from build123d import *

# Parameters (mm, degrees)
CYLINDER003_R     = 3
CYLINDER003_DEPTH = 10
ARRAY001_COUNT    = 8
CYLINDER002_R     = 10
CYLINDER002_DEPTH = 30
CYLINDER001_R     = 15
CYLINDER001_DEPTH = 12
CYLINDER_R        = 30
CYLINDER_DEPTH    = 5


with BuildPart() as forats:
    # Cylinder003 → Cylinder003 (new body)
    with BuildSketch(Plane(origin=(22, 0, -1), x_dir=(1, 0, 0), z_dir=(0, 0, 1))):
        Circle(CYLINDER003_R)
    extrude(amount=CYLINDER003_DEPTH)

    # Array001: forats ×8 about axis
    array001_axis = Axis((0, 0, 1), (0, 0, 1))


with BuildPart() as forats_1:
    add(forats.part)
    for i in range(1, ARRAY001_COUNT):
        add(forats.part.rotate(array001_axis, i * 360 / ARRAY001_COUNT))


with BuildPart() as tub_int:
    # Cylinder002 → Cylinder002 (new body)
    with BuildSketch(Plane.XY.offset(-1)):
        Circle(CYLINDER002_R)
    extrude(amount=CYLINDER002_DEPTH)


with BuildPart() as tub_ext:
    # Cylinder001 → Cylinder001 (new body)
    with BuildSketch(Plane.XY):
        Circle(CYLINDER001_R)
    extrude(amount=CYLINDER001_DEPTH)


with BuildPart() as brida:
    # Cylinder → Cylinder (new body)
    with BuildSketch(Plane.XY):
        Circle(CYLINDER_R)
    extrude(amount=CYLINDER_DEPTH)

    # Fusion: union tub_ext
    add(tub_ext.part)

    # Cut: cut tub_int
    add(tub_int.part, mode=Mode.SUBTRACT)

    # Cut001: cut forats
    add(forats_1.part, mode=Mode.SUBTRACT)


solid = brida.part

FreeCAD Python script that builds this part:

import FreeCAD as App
import Part
import Sketcher

doc = App.newDocument("Part")
body = doc.addObject("PartDesign::Body", "Body")

# Sketch on XY plane
sketch1 = doc.addObject("Sketcher::SketchObject", "Sketch")
body.addObject(sketch1)
sketch1.AttachmentSupport = (doc.XY_Plane, [""])
sketch1.MapMode = "FlatFace"
sketch1.AttachmentOffset = App.Placement(App.Vector(0, 0, -1), App.Rotation())
sketch1.addGeometry(Part.Circle(App.Vector(22, 0, 0), App.Vector(0, 0, 1), 3), False)
sketch1.addConstraint(Sketcher.Constraint("PointOnObject", 0, 3, -1))
sketch1.addConstraint(Sketcher.Constraint("Diameter", 0, 6.0))
sketch1.addConstraint(Sketcher.Constraint("DistanceX", -1, 1, 0, 3, 22.0))
pad1 = doc.addObject("PartDesign::Pad", "Pad")
body.addObject(pad1)
pad1.Profile = sketch1
pad1.Length = 10
body2 = doc.addObject("PartDesign::Body", "Body001")
body2.AllowCompound = True
doc.recompute()

body2.BaseFeature = body
doc.recompute()

body3 = doc.addObject("PartDesign::Body", "Body002")
body3.BaseFeature = body
body3.Placement = App.Placement(App.Vector(0, 0, 0), App.Rotation(App.Vector(0, 0, 1), 45))
boolean = doc.addObject("PartDesign::Boolean", "Boolean")
body2.addObject(boolean)
boolean.Type = "Fuse"
boolean.addObjects([body3])
doc.recompute()

body4 = doc.addObject("PartDesign::Body", "Body003")
body4.BaseFeature = body
body4.Placement = App.Placement(App.Vector(0, 0, 0), App.Rotation(App.Vector(0, 0, 1), 90))
boolean2 = doc.addObject("PartDesign::Boolean", "Boolean001")
body2.addObject(boolean2)
boolean2.Type = "Fuse"
boolean2.addObjects([body4])
doc.recompute()

body5 = doc.addObject("PartDesign::Body", "Body004")
body5.BaseFeature = body
body5.Placement = App.Placement(App.Vector(0, 0, 0), App.Rotation(App.Vector(0, 0, 1), 135))
boolean3 = doc.addObject("PartDesign::Boolean", "Boolean002")
body2.addObject(boolean3)
boolean3.Type = "Fuse"
boolean3.addObjects([body5])
doc.recompute()

body6 = doc.addObject("PartDesign::Body", "Body005")
body6.BaseFeature = body
body6.Placement = App.Placement(App.Vector(0, 0, 0), App.Rotation(App.Vector(0, 0, 1), 180))
boolean4 = doc.addObject("PartDesign::Boolean", "Boolean003")
body2.addObject(boolean4)
boolean4.Type = "Fuse"
boolean4.addObjects([body6])
doc.recompute()

body7 = doc.addObject("PartDesign::Body", "Body006")
body7.BaseFeature = body
body7.Placement = App.Placement(App.Vector(0, 0, 0), App.Rotation(App.Vector(0, 0, 1), 225))
boolean5 = doc.addObject("PartDesign::Boolean", "Boolean004")
body2.addObject(boolean5)
boolean5.Type = "Fuse"
boolean5.addObjects([body7])
doc.recompute()

body8 = doc.addObject("PartDesign::Body", "Body007")
body8.BaseFeature = body
body8.Placement = App.Placement(App.Vector(0, 0, 0), App.Rotation(App.Vector(0, 0, 1), 270))
boolean6 = doc.addObject("PartDesign::Boolean", "Boolean005")
body2.addObject(boolean6)
boolean6.Type = "Fuse"
boolean6.addObjects([body8])
doc.recompute()

body.Placement = App.Placement(App.Vector(0, 0, 0), App.Rotation(App.Vector(0, 0, 1), 315))
boolean7 = doc.addObject("PartDesign::Boolean", "Boolean006")
body2.addObject(boolean7)
boolean7.Type = "Fuse"
boolean7.addObjects([body])
body9 = doc.addObject("PartDesign::Body", "Body008")

# Sketch on XY plane
sketch2 = doc.addObject("Sketcher::SketchObject", "Sketch001")
body9.addObject(sketch2)
sketch2.AttachmentSupport = (doc.getObject("XY_Plane008"), [""])
sketch2.MapMode = "FlatFace"
sketch2.AttachmentOffset = App.Placement(App.Vector(0, 0, -1), App.Rotation())
sketch2.addGeometry(Part.Circle(App.Vector(0, 0, 0), App.Vector(0, 0, 1), 10), False)
sketch2.addConstraint(Sketcher.Constraint("Coincident", 0, 3, -1, 1))
sketch2.addConstraint(Sketcher.Constraint("Diameter", 0, 20.0))
pad2 = doc.addObject("PartDesign::Pad", "Pad001")
body9.addObject(pad2)
pad2.Profile = sketch2
pad2.Length = 30
body10 = doc.addObject("PartDesign::Body", "Body009")

# Sketch on XY plane
sketch3 = doc.addObject("Sketcher::SketchObject", "Sketch002")
body10.addObject(sketch3)
sketch3.AttachmentSupport = (doc.getObject("XY_Plane009"), [""])
sketch3.MapMode = "FlatFace"
sketch3.addGeometry(Part.Circle(App.Vector(0, 0, 0), App.Vector(0, 0, 1), 15), False)
sketch3.addConstraint(Sketcher.Constraint("Coincident", 0, 3, -1, 1))
sketch3.addConstraint(Sketcher.Constraint("Diameter", 0, 30.0))
pad3 = doc.addObject("PartDesign::Pad", "Pad002")
body10.addObject(pad3)
pad3.Profile = sketch3
pad3.Length = 12
body11 = doc.addObject("PartDesign::Body", "Body010")

# Sketch on XY plane
sketch4 = doc.addObject("Sketcher::SketchObject", "Sketch003")
body11.addObject(sketch4)
sketch4.AttachmentSupport = (doc.getObject("XY_Plane010"), [""])
sketch4.MapMode = "FlatFace"
sketch4.addGeometry(Part.Circle(App.Vector(0, 0, 0), App.Vector(0, 0, 1), 30), False)
sketch4.addConstraint(Sketcher.Constraint("Coincident", 0, 3, -1, 1))
sketch4.addConstraint(Sketcher.Constraint("Diameter", 0, 60.0))
pad4 = doc.addObject("PartDesign::Pad", "Pad003")
body11.addObject(pad4)
pad4.Profile = sketch4
pad4.Length = 5
doc.recompute()

boolean8 = doc.addObject("PartDesign::Boolean", "Boolean007")
body11.addObject(boolean8)
boolean8.Type = "Fuse"
boolean8.addObjects([body10])
doc.recompute()

boolean9 = doc.addObject("PartDesign::Boolean", "Boolean008")
body11.addObject(boolean9)
boolean9.Type = "Cut"
boolean9.addObjects([body9])
doc.recompute()

boolean10 = doc.addObject("PartDesign::Boolean", "Boolean009")
body11.addObject(boolean10)
boolean10.Type = "Cut"
boolean10.addObjects([body2])

doc.recompute()
